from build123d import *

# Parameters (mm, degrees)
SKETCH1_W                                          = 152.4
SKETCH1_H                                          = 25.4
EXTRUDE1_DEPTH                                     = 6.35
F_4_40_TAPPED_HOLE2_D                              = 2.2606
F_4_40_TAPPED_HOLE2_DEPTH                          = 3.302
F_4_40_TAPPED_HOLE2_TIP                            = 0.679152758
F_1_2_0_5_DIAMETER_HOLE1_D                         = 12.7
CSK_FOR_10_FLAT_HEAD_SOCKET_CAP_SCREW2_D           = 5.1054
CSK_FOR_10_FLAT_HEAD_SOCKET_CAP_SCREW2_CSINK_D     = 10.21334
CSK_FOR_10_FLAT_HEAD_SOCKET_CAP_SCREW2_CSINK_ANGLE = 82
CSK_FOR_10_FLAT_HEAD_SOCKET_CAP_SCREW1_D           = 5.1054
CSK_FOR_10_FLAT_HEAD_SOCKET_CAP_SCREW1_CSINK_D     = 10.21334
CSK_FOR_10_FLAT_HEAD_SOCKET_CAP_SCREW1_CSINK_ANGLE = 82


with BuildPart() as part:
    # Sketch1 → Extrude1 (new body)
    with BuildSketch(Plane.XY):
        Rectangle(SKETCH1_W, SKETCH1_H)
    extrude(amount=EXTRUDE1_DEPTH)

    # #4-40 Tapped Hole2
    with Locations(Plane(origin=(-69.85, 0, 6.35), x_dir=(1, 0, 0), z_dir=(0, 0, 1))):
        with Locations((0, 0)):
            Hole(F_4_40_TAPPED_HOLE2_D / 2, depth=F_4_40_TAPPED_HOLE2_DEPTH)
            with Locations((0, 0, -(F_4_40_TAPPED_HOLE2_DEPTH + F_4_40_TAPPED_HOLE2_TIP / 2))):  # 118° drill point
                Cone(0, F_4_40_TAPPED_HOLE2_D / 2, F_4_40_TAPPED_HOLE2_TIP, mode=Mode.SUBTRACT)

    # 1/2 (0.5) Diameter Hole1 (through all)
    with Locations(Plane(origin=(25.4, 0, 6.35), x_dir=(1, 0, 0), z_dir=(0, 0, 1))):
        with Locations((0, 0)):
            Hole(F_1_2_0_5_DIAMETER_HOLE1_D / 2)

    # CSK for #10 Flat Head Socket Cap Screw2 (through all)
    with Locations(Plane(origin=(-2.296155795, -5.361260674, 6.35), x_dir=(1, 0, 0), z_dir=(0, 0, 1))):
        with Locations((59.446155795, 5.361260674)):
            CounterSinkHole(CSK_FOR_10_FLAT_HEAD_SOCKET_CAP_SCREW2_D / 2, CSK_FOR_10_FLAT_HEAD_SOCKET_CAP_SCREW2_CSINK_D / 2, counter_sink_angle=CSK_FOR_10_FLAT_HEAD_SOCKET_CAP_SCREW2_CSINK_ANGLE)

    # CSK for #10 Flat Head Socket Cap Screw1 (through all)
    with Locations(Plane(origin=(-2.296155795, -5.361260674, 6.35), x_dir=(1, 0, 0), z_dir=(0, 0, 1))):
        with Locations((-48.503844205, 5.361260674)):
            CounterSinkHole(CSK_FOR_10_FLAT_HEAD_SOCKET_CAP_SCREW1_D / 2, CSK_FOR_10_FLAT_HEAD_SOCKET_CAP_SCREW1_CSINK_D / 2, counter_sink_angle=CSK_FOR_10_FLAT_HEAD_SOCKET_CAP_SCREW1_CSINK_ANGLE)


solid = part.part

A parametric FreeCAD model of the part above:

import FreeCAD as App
import Part
import Sketcher

V = App.Vector
Q = App.Units.Quantity


def add_polygon(sketch, points):
    """Adds a closed chain of lines whose ends are joined by coincident constraints."""
    first, n = sketch.GeometryCount, len(points)
    for a, b in zip(points, points[1:] + points[:1]):
        sketch.addGeometry(Part.LineSegment(App.Vector(*a, 0), App.Vector(*b, 0)), False)
    for i in range(n):
        sketch.addConstraint(Sketcher.Constraint("Coincident", first + i, 2, first + (i + 1) % n, 1))

doc = App.newDocument("Part")
body = doc.addObject("PartDesign::Body", "Body")

sketch1 = body.newObject("Sketcher::SketchObject", "Sketch")
sketch1.AttachmentSupport = (doc.getObject("XY_Plane"), [""])
sketch1.MapMode = "FlatFace"
add_polygon(sketch1, [(-76, 13), (-76, -13), (76, -13), (76, 13)])
sketch1.addConstraint([
    Sketcher.Constraint("Vertical", 0),
    Sketcher.Constraint("Horizontal", 1),
    Sketcher.Constraint("Vertical", 2),
    Sketcher.Constraint("Horizontal", 3),
    Sketcher.Constraint("Symmetric", 0, 2, 2, 2, -1, 1),
    Sketcher.Constraint("DistanceX", 1, 1, 1, 2, Q("6 in")),
    Sketcher.Constraint("DistanceY", 0, 2, 0, 1, Q("1 in")),
])
pad1 = body.newObject("PartDesign::Pad", "Pad")
pad1.Profile = sketch1
pad1.Length = Q("0.25 in")

sketch2 = body.newObject("Sketcher::SketchObject", "Sketch001")
sketch2.AttachmentSupport = (doc.getObject("XY_Plane"), [""])
sketch2.MapMode = "FlatFace"
sketch2.AttachmentOffset = App.Placement(V(0, 0, 0.25 * 25.4), App.Rotation())
sketch2.addGeometry(Part.Circle(V(-69.8, 0, 0), V(0, 0, 1), 1.1), False)
sketch2.addConstraint([
    Sketcher.Constraint("PointOnObject", 0, 3, -1),
    Sketcher.Constraint("Diameter", 0, Q("0.089 in")),
    Sketcher.Constraint("DistanceX", 0, 3, -1, 1, Q("2.75 in")),
])
doc.recompute()
hole = body.newObject("PartDesign::Hole", "Hole")
hole.Profile = sketch2
hole.ThreadType = "None"
hole.Diameter = Q("0.089 in")
hole.DepthType = "Dimension"
hole.Depth = Q("0.13 in")
hole.DrillPoint = "Angled"
hole.DrillPointAngle = 118

sketch3 = body.newObject("Sketcher::SketchObject", "Sketch002")
sketch3.AttachmentSupport = (doc.getObject("XY_Plane"), [""])
sketch3.MapMode = "FlatFace"
sketch3.AttachmentOffset = App.Placement(V(0, 0, 0.25 * 25.4), App.Rotation())
sketch3.addGeometry(Part.Circle(V(25, 0, 0), V(0, 0, 1), 6), False)
sketch3.addConstraint([
    Sketcher.Constraint("PointOnObject", 0, 3, -1),
    Sketcher.Constraint("Diameter", 0, Q("0.5 in")),
    Sketcher.Constraint("DistanceX", -1, 1, 0, 3, Q("1 in")),
])
doc.recompute()
hole2 = body.newObject("PartDesign::Hole", "Hole001")
hole2.Profile = sketch3
hole2.ThreadType = "None"
hole2.Diameter = Q("0.5 in")
hole2.DepthType = "ThroughAll"

sketch4 = body.newObject("Sketcher::SketchObject", "Sketch003")
sketch4.AttachmentSupport = (doc.getObject("XY_Plane"), [""])
sketch4.MapMode = "FlatFace"
sketch4.AttachmentOffset = App.Placement(V(0, 0, 0.25 * 25.4), App.Rotation())
sketch4.addGeometry(Part.Circle(V(57.1, 0, 0), V(0, 0, 1), 2.6), False)
sketch4.addConstraint([
    Sketcher.Constraint("PointOnObject", 0, 3, -1),
    Sketcher.Constraint("Diameter", 0, Q("0.201 in")),
    Sketcher.Constraint("DistanceX", -1, 1, 0, 3, Q("2.25 in")),
])
doc.recompute()
hole3 = body.newObject("PartDesign::Hole", "Hole002")
hole3.Profile = sketch4
hole3.ThreadType = "None"
hole3.Diameter = Q("0.201 in")
hole3.DepthType = "ThroughAll"
hole3.HoleCutType = "Countersink"
hole3.HoleCutDiameter = Q("0.4021 in")
hole3.HoleCutCountersinkAngle = 82

sketch5 = body.newObject("Sketcher::SketchObject", "Sketch004")
sketch5.AttachmentSupport = (doc.getObject("XY_Plane"), [""])
sketch5.MapMode = "FlatFace"
sketch5.AttachmentOffset = App.Placement(V(0, 0, 0.25 * 25.4), App.Rotation())
sketch5.addGeometry(Part.Circle(V(-50.8, 0, 0), V(0, 0, 1), 2.6), False)
sketch5.addConstraint([
    Sketcher.Constraint("PointOnObject", 0, 3, -1),
    Sketcher.Constraint("Diameter", 0, Q("0.201 in")),
    Sketcher.Constraint("DistanceX", 0, 3, -1, 1, Q("2 in")),
])
doc.recompute()
hole4 = body.newObject("PartDesign::Hole", "Hole003")
hole4.Profile = sketch5
hole4.ThreadType = "None"
hole4.Diameter = Q("0.201 in")
hole4.DepthType = "ThroughAll"
hole4.HoleCutType = "Countersink"
hole4.HoleCutDiameter = Q("0.4021 in")
hole4.HoleCutCountersinkAngle = 82

doc.recompute()
